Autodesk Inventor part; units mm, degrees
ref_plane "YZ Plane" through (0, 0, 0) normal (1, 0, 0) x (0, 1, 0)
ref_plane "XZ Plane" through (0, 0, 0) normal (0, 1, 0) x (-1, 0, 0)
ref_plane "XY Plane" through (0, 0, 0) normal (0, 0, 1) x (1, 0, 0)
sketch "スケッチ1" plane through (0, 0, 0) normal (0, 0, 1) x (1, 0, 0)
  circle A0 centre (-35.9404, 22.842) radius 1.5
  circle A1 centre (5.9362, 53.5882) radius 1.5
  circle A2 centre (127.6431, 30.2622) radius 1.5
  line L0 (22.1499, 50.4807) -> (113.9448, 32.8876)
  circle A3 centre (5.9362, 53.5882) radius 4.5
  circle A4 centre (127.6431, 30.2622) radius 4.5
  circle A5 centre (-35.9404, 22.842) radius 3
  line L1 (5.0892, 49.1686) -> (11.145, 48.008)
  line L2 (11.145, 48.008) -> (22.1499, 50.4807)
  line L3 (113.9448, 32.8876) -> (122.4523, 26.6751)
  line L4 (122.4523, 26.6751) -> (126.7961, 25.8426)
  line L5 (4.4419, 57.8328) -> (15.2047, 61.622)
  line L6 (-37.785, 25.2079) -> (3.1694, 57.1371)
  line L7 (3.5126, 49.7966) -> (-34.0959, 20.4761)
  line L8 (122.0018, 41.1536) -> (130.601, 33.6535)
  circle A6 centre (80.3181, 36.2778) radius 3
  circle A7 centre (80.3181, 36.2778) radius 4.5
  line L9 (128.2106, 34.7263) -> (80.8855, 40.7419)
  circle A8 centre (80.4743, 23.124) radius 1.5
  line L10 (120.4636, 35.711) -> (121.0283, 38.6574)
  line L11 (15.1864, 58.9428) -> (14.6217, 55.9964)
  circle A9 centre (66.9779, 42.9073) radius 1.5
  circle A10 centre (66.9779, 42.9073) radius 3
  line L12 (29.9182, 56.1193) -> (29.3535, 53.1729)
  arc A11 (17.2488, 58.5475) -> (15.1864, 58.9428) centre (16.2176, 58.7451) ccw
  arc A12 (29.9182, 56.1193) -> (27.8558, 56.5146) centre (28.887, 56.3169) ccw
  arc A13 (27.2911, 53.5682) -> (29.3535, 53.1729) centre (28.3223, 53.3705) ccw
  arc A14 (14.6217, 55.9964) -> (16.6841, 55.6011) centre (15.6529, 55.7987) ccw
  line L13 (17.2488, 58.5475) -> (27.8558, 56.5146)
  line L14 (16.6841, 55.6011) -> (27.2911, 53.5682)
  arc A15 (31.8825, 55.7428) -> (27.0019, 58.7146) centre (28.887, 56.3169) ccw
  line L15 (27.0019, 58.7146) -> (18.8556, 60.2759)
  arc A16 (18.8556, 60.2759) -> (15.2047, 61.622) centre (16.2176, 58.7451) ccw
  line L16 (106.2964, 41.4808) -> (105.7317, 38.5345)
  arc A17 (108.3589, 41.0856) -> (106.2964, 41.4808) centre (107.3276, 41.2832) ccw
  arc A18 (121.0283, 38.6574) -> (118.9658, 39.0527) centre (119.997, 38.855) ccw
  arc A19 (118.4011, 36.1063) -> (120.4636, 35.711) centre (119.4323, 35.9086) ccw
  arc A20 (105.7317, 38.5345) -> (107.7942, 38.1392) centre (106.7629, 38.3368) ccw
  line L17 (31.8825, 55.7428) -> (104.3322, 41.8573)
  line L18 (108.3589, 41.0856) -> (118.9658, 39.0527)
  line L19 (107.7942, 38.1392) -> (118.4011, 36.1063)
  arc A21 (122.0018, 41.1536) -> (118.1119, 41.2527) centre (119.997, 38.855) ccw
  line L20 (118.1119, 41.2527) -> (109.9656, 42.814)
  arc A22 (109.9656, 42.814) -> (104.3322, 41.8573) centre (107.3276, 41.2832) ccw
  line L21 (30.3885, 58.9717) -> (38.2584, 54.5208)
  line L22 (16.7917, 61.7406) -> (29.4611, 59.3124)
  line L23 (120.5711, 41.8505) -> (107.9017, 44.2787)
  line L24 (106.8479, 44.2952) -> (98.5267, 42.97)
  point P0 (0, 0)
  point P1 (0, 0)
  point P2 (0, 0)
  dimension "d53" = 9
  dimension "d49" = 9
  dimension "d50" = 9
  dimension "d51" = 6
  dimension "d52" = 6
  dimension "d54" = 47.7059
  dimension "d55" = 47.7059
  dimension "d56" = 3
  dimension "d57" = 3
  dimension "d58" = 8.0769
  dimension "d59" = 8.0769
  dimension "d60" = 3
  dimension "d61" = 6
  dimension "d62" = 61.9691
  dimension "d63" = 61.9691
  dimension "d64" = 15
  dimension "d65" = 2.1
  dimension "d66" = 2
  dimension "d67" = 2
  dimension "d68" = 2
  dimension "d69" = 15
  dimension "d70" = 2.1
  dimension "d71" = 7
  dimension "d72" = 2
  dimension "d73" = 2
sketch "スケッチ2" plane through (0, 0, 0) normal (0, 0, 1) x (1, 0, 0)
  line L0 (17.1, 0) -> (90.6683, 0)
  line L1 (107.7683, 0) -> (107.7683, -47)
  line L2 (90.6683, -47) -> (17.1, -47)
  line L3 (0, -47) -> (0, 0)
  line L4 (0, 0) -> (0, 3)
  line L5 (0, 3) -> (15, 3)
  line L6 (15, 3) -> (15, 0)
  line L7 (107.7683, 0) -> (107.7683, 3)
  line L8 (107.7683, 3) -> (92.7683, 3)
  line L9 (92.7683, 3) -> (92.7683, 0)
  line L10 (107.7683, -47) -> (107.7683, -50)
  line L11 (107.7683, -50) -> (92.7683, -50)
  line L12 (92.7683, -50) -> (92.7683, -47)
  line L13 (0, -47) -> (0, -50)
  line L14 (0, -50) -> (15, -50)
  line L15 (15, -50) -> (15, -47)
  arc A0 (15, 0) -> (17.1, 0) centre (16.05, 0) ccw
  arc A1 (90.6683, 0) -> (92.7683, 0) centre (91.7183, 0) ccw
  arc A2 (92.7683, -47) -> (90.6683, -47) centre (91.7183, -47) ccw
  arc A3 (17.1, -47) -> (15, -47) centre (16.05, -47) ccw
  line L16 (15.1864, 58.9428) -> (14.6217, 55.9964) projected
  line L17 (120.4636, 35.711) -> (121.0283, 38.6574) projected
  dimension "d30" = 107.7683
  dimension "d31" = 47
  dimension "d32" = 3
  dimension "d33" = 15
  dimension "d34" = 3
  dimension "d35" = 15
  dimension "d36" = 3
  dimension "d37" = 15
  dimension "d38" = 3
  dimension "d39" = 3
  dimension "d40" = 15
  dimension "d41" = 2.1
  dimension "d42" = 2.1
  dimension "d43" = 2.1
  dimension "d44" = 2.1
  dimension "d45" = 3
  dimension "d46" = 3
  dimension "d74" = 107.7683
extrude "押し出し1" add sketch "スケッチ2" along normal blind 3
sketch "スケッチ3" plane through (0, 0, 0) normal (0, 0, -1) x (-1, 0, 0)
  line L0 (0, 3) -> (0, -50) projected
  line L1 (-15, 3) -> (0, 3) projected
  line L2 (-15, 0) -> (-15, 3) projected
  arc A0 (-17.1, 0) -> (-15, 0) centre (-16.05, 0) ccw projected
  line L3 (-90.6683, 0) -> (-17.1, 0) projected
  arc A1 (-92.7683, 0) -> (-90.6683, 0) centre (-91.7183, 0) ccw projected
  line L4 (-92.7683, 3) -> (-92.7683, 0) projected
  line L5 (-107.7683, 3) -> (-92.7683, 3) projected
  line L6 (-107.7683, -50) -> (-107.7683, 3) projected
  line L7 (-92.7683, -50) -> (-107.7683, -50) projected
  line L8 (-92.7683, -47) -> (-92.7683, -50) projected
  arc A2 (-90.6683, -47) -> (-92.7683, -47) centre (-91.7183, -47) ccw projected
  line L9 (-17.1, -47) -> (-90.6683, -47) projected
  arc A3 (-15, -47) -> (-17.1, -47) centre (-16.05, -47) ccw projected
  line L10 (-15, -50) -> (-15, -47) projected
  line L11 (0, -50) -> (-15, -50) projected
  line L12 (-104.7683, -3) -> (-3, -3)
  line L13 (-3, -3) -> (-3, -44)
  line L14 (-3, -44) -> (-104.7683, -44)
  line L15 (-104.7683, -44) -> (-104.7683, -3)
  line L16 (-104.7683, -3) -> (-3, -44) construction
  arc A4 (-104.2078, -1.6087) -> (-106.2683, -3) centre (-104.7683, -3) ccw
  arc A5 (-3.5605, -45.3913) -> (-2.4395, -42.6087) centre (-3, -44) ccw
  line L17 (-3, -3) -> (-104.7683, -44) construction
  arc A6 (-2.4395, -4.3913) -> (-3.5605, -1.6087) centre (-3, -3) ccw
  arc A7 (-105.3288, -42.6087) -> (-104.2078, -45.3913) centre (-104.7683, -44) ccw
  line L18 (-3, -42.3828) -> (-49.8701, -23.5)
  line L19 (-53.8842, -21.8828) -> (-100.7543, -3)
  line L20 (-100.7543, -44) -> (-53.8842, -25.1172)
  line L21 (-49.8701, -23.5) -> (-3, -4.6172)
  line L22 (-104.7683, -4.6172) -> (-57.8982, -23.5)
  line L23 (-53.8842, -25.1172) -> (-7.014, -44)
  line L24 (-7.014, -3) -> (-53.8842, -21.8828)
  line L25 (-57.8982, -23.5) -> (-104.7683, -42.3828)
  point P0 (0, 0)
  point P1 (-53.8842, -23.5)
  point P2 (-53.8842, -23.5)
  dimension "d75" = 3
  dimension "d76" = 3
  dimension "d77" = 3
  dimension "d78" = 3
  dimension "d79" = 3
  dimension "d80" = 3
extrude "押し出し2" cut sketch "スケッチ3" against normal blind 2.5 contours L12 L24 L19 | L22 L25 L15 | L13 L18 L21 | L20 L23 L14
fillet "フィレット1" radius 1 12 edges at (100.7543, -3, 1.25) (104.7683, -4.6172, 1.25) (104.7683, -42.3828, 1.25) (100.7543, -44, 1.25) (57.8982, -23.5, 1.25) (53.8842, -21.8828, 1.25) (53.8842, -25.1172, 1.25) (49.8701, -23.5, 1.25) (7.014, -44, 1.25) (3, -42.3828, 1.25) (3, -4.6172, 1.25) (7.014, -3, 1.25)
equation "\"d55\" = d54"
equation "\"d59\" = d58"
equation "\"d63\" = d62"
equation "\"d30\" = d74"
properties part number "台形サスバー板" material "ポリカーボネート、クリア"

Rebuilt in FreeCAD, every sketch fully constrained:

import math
import FreeCAD as App
import Part
import Sketcher


def edges_at(feature, points):
    """Names of the edges that pass closest to the given points."""
    edges = feature.Shape.Edges
    near = lambda p: min(range(len(edges)), key=lambda i: edges[i].distToShape(Part.Vertex(*p))[0])
    return sorted({f"Edge{near(p) + 1}" for p in points})


def add_polygon(sketch, points):
    """Adds a closed chain of lines whose ends are joined by coincident constraints."""
    first, n = sketch.GeometryCount, len(points)
    for a, b in zip(points, points[1:] + points[:1]):
        sketch.addGeometry(Part.LineSegment(App.Vector(*a, 0), App.Vector(*b, 0)), False)
    for i in range(n):
        sketch.addConstraint(Sketcher.Constraint("Coincident", first + i, 2, first + (i + 1) % n, 1))

doc = App.newDocument("Part")
body = doc.addObject("PartDesign::Body", "Body")

sketch1 = body.newObject("Sketcher::SketchObject", "Sketch")
sketch1.AttachmentSupport = (doc.getObject("XY_Plane"), [""])
sketch1.MapMode = "FlatFace"
sketch1.addGeometry([
    Part.LineSegment(App.Vector(90.7, 0, 0), App.Vector(17.1, 0, 0)),
    Part.ArcOfCircle(Part.Circle(App.Vector(16.1, 0, 0), App.Vector(0, 0, 1), 1.1), math.radians(180), math.radians(360)),
    Part.LineSegment(App.Vector(15, 0, 0), App.Vector(15, 3, 0)),
    Part.LineSegment(App.Vector(15, 3, 0), App.Vector(0, 3, 0)),
    Part.LineSegment(App.Vector(0, 3, 0), App.Vector(0, -50, 0)),
    Part.LineSegment(App.Vector(0, -50, 0), App.Vector(15, -50, 0)),
    Part.LineSegment(App.Vector(15, -50, 0), App.Vector(15, -47, 0)),
    Part.ArcOfCircle(Part.Circle(App.Vector(16.1, -47, 0), App.Vector(0, 0, 1), 1.1), math.radians(0), math.radians(180)),
    Part.LineSegment(App.Vector(17.1, -47, 0), App.Vector(90.7, -47, 0)),
    Part.ArcOfCircle(Part.Circle(App.Vector(91.7, -47, 0), App.Vector(0, 0, 1), 1), math.radians(0), math.radians(180)),
    Part.LineSegment(App.Vector(92.8, -47, 0), App.Vector(92.8, -50, 0)),
    Part.LineSegment(App.Vector(92.8, -50, 0), App.Vector(107.8, -50, 0)),
    Part.LineSegment(App.Vector(107.8, -50, 0), App.Vector(107.8, 3, 0)),
    Part.LineSegment(App.Vector(107.8, 3, 0), App.Vector(92.8, 3, 0)),
    Part.LineSegment(App.Vector(92.8, 3, 0), App.Vector(92.8, 0, 0)),
    Part.ArcOfCircle(Part.Circle(App.Vector(91.7, 0, 0), App.Vector(0, 0, 1), 1), math.radians(180), math.radians(360)),
], False)
sketch1.addConstraint([
    Sketcher.Constraint("Coincident", 0, 2, 1, 2),
    Sketcher.Constraint("Tangent", 1, 1, 2, 1),
    Sketcher.Constraint("Coincident", 2, 2, 3, 1),
    Sketcher.Constraint("Coincident", 3, 2, 4, 1),
    Sketcher.Constraint("Coincident", 4, 2, 5, 1),
    Sketcher.Constraint("Coincident", 5, 2, 6, 1),
    Sketcher.Constraint("Tangent", 6, 2, 7, 2),
    Sketcher.Constraint("Coincident", 7, 1, 8, 1),
    Sketcher.Constraint("Coincident", 8, 2, 9, 2),
    Sketcher.Constraint("Tangent", 9, 1, 10, 1),
    Sketcher.Constraint("Coincident", 10, 2, 11, 1),
    Sketcher.Constraint("Coincident", 11, 2, 12, 1),
    Sketcher.Constraint("Coincident", 12, 2, 13, 1),
    Sketcher.Constraint("Coincident", 13, 2, 14, 1),
    Sketcher.Constraint("Tangent", 14, 2, 15, 2),
    Sketcher.Constraint("Coincident", 15, 1, 0, 1),
    Sketcher.Constraint("Horizontal", 0),
    Sketcher.Constraint("Vertical", 2),
    Sketcher.Constraint("Horizontal", 3),
    Sketcher.Constraint("Vertical", 4),
    Sketcher.Constraint("Horizontal", 5),
    Sketcher.Constraint("Vertical", 6),
    Sketcher.Constraint("Horizontal", 8),
    Sketcher.Constraint("Vertical", 10),
    Sketcher.Constraint("Horizontal", 11),
    Sketcher.Constraint("Vertical", 12),
    Sketcher.Constraint("Horizontal", 13),
    Sketcher.Constraint("Vertical", 14),
    Sketcher.Constraint("Equal", 1, 7),
    Sketcher.Constraint("Equal", 7, 9),
    Sketcher.Constraint("Equal", 9, 15),
    Sketcher.Constraint("PointOnObject", 1, 3, -1),
    Sketcher.Constraint("PointOnObject", 15, 3, -1),
    Sketcher.Constraint("PointOnObject", 0, 2, -1),
    Sketcher.Constraint("PointOnObject", 3, 2, -2),
    Sketcher.Constraint("Horizontal", 7, 3, 9, 3),
    Sketcher.Constraint("Horizontal", 6, 2, 7, 1),
    Sketcher.Constraint("Horizontal", 5, 2, 10, 2),
    Sketcher.Constraint("Horizontal", 3, 2, 12, 2),
    Sketcher.Constraint("Vertical", 1, 3, 7, 3),
    Sketcher.Constraint("Vertical", 9, 3, 15, 3),
    Sketcher.Constraint("Equal", 5, 11),
    Sketcher.Constraint("Equal", 2, 6),
    Sketcher.Constraint("DistanceX", 3, 2, 3, 1, 15.0),
    Sketcher.Constraint("DistanceY", 2, 1, 2, 2, 3.0),
    Sketcher.Constraint("Radius", 1, 1.05),
    Sketcher.Constraint("DistanceY", 7, 3, -1, 1, 47.0),
    Sketcher.Constraint("DistanceX", -1, 1, 11, 2, 107.7683),
])
pad1 = body.newObject("PartDesign::Pad", "Pad")
pad1.Profile = sketch1
pad1.Length = 3

sketch2 = body.newObject("Sketcher::SketchObject", "Sketch001")
sketch2.AttachmentSupport = (doc.getObject("XY_Plane"), [""])
sketch2.MapMode = "FlatFace"
add_polygon(sketch2, [(7, -3), (101, -3), (54, -22)])
add_polygon(sketch2, [(58, -24), (105, -5), (105, -42)])
add_polygon(sketch2, [(3, -42), (3, -5), (50, -24)])
add_polygon(sketch2, [(54, -25), (101, -44), (7, -44)])
sketch2.addConstraint([
    Sketcher.Constraint("Horizontal", 0),
    Sketcher.Constraint("Vertical", 4),
    Sketcher.Constraint("Vertical", 6),
    Sketcher.Constraint("Horizontal", 10),
    Sketcher.Constraint("Parallel", 1, 3),
    Sketcher.Constraint("Parallel", 2, 5),
    Sketcher.Constraint("Parallel", 5, 7),
    Sketcher.Constraint("Parallel", 3, 8),
    Sketcher.Constraint("Parallel", 7, 9),
    Sketcher.Constraint("Parallel", 8, 11),
    Sketcher.Constraint("Horizontal", 3, 2, 6, 2),
    Sketcher.Constraint("Horizontal", 5, 2, 7, 2),
    Sketcher.Constraint("Horizontal", 4, 2, 8, 2),
    Sketcher.Constraint("Vertical", 0, 2, 9, 2),
    Sketcher.Constraint("Vertical", 2, 2, 10, 2),
    Sketcher.Constraint("Equal", 2, 3),
    Sketcher.Constraint("DistanceY", 0, 2, -1, 1, 3.0),
    Sketcher.Constraint("DistanceX", -1, 1, 6, 2, 3.0),
    Sketcher.Constraint("DistanceY", 9, 2, -1, 1, 44.0),
    Sketcher.Constraint("DistanceY", 5, 2, -1, 1, 23.5),
    Sketcher.Constraint("DistanceX", -1, 1, 7, 2, 49.87),
    Sketcher.Constraint("Distance", 2, 50.531),
    Sketcher.Constraint("DistanceX", -1, 1, 2, 2, 7.014),
    Sketcher.Constraint("DistanceX", 0, 2, 3, 2, 4.014),
])
pocket1 = body.newObject("PartDesign::Pocket", "Pocket")
pocket1.Profile = sketch2
pocket1.Length = 2.5
pocket1.Reversed = True
doc.recompute()

fillet = body.newObject("PartDesign::Fillet", "Fillet")
fillet.Base = (pocket1, edges_at(pocket1, [
    (100.754, -3, 1.25),
    (104.768, -4.617, 1.25),
    (104.768, -42.383, 1.25),
    (100.754, -44, 1.25),
    (57.898, -23.5, 1.25),
    (53.884, -21.883, 1.25),
    (53.884, -25.117, 1.25),
    (49.87, -23.5, 1.25),
    (7.014, -44, 1.25),
    (3, -42.383, 1.25),
    (3, -4.617, 1.25),
    (7.014, -3, 1.25),
]))
fillet.Radius = 1

doc.recompute()
